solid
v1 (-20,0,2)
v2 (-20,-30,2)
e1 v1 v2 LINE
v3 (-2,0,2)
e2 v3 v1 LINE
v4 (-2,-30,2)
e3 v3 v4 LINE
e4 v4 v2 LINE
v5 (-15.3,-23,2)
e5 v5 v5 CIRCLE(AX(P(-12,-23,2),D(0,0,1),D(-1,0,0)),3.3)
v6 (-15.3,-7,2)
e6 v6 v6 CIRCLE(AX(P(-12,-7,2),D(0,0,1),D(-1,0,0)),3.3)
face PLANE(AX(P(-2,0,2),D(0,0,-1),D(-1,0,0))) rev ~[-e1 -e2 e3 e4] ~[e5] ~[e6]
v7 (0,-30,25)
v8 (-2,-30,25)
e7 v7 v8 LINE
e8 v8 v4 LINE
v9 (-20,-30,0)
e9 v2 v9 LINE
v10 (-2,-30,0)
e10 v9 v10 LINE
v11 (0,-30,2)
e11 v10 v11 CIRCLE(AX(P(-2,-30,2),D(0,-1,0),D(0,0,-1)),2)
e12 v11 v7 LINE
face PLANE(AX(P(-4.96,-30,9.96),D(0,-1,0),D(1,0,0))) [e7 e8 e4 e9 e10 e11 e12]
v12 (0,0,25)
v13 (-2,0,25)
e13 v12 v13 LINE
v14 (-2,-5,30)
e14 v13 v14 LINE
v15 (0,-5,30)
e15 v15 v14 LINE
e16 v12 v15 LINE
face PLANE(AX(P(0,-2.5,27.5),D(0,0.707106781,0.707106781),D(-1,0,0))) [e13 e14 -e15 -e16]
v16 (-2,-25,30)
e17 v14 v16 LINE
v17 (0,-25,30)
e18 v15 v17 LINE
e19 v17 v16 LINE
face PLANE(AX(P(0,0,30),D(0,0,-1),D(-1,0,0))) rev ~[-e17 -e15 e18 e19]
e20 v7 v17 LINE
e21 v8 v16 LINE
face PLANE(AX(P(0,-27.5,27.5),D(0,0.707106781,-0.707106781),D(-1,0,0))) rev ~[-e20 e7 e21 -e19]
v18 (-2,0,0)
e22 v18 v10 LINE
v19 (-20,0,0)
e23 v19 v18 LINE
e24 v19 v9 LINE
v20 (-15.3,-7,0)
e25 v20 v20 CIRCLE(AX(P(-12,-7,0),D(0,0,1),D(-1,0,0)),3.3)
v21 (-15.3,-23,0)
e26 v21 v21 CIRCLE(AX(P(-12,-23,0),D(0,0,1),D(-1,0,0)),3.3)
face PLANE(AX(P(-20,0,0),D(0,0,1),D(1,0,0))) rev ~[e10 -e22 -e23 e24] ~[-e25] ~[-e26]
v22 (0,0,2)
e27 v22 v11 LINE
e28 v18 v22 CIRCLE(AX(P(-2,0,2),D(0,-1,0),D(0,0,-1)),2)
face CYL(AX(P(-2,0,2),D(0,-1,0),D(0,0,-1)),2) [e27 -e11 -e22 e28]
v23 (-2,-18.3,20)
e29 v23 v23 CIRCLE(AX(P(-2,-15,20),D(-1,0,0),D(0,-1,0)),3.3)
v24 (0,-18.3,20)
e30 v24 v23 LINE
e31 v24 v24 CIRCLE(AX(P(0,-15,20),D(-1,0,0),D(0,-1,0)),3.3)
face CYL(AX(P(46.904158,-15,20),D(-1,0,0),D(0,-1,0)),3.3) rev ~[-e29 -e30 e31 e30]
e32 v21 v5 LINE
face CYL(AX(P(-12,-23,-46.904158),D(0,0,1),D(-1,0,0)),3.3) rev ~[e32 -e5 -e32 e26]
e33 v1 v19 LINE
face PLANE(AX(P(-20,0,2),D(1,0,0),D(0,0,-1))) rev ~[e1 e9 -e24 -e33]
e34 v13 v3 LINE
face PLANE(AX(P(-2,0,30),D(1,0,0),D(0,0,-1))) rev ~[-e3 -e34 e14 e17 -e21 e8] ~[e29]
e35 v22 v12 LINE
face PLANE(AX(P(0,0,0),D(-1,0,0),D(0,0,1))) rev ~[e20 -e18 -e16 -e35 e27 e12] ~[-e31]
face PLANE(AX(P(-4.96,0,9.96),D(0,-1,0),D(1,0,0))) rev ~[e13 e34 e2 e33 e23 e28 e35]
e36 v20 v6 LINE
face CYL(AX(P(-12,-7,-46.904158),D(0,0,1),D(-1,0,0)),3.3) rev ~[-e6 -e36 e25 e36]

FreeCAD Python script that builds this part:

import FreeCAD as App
import Part
import Sketcher
from FreeCAD import Vector
Q = App.Units.Quantity


def edges_at(feature, points):
    """Names of the edges that pass closest to the given points."""
    edges = feature.Shape.Edges
    near = lambda p: min(range(len(edges)), key=lambda i: edges[i].distToShape(Part.Vertex(*p))[0])
    return sorted({f"Edge{near(p) + 1}" for p in points})


def add_polygon(sketch, points):
    """Adds a closed chain of lines whose ends are joined by coincident constraints."""
    first, n = sketch.GeometryCount, len(points)
    for a, b in zip(points, points[1:] + points[:1]):
        sketch.addGeometry(Part.LineSegment(App.Vector(*a, 0), App.Vector(*b, 0)), False)
    for i in range(n):
        sketch.addConstraint(Sketcher.Constraint("Coincident", first + i, 2, first + (i + 1) % n, 1))

doc = App.newDocument("Part")
body = doc.addObject("PartDesign::Body", "Body")

# Sketch on XZ plane
sketch1 = doc.addObject("Sketcher::SketchObject", "Sketch")
body.addObject(sketch1)
sketch1.AttachmentSupport = (doc.XZ_Plane, [""])
sketch1.MapMode = "FlatFace"
add_polygon(sketch1, [(-20, 0), (0, 0), (0, 30), (-2, 30), (-2, 2), (-20, 2)])  # lines 0-5
sketch1.addConstraint([
    Sketcher.Constraint("Horizontal", 0),
    Sketcher.Constraint("Vertical", 1),
    Sketcher.Constraint("Horizontal", 2),
    Sketcher.Constraint("Vertical", 3),
    Sketcher.Constraint("Horizontal", 4),
    Sketcher.Constraint("Vertical", 5),
    Sketcher.Constraint("Coincident", 0, 2, -1, 1),
    Sketcher.Constraint("Equal", 2, 5),
    Sketcher.Constraint("DistanceX", 0, 1, 0, 2, Q("20 mm")),
    Sketcher.Constraint("DistanceX", 2, 2, 2, 1, Q("2 mm")),
    Sketcher.Constraint("DistanceY", 1, 1, 1, 2, Q("30 mm")),
])
pad1 = doc.addObject("PartDesign::Pad", "Pad")
body.addObject(pad1)
pad1.Profile = sketch1
pad1.Length = 30

# Sketch on XY plane
sketch2 = doc.addObject("Sketcher::SketchObject", "Sketch001")
body.addObject(sketch2)
sketch2.AttachmentSupport = (doc.XY_Plane, [""])
sketch2.MapMode = "FlatFace"
sketch2.addGeometry([
    Part.Circle(Vector(-12, -23, 0), Vector(0, 0, 1), 3.3),
    Part.Circle(Vector(-12, -7, 0), Vector(0, 0, 1), 3.3),
], False)
sketch2.addConstraint([
    Sketcher.Constraint("Equal", 0, 1),
    Sketcher.Constraint("Vertical", 0, 3, 1, 3),
    Sketcher.Constraint("Diameter", 0, Q("6.6 mm")),
    Sketcher.Constraint("DistanceX", 0, 3, -1, 1, Q("12 mm")),
    Sketcher.Constraint("DistanceY", 0, 3, -1, 1, Q("23 mm")),
    Sketcher.Constraint("DistanceY", 1, 3, -1, 1, Q("7 mm")),
])
doc.recompute()
hole = doc.addObject("PartDesign::Hole", "Hole")
body.addObject(hole)
hole.Profile = sketch2
hole.ThreadType = "None"
hole.Diameter = 6.6
hole.DepthType = "ThroughAll"
hole.Reversed = True

# Sketch on YZ plane
sketch3 = doc.addObject("Sketcher::SketchObject", "Sketch002")
body.addObject(sketch3)
sketch3.AttachmentSupport = (doc.YZ_Plane, [""])
sketch3.MapMode = "FlatFace"
sketch3.addGeometry(Part.Circle(Vector(-15, 20, 0), Vector(0, 0, 1), 3.3), False)
sketch3.addConstraint([
    Sketcher.Constraint("Diameter", 0, Q("6.6 mm")),
    Sketcher.Constraint("DistanceX", 0, 3, -1, 1, Q("15 mm")),
    Sketcher.Constraint("DistanceY", -1, 1, 0, 3, Q("20 mm")),
])
doc.recompute()
hole2 = doc.addObject("PartDesign::Hole", "Hole001")
body.addObject(hole2)
hole2.Profile = sketch3
hole2.ThreadType = "None"
hole2.Diameter = 6.6
hole2.DepthType = "ThroughAll"
doc.recompute()

fillet = doc.addObject("PartDesign::Fillet", "Fillet")
body.addObject(fillet)
fillet.Base = (hole2, edges_at(hole2, [(0, -15, 0)]))
fillet.Radius = 2
doc.recompute()

chamfer = doc.addObject("PartDesign::Chamfer", "Chamfer")
body.addObject(chamfer)
chamfer.Base = (fillet, edges_at(fillet, [(-1, -30, 30), (-1, 0, 30)]))
chamfer.Size = 5

doc.recompute()
